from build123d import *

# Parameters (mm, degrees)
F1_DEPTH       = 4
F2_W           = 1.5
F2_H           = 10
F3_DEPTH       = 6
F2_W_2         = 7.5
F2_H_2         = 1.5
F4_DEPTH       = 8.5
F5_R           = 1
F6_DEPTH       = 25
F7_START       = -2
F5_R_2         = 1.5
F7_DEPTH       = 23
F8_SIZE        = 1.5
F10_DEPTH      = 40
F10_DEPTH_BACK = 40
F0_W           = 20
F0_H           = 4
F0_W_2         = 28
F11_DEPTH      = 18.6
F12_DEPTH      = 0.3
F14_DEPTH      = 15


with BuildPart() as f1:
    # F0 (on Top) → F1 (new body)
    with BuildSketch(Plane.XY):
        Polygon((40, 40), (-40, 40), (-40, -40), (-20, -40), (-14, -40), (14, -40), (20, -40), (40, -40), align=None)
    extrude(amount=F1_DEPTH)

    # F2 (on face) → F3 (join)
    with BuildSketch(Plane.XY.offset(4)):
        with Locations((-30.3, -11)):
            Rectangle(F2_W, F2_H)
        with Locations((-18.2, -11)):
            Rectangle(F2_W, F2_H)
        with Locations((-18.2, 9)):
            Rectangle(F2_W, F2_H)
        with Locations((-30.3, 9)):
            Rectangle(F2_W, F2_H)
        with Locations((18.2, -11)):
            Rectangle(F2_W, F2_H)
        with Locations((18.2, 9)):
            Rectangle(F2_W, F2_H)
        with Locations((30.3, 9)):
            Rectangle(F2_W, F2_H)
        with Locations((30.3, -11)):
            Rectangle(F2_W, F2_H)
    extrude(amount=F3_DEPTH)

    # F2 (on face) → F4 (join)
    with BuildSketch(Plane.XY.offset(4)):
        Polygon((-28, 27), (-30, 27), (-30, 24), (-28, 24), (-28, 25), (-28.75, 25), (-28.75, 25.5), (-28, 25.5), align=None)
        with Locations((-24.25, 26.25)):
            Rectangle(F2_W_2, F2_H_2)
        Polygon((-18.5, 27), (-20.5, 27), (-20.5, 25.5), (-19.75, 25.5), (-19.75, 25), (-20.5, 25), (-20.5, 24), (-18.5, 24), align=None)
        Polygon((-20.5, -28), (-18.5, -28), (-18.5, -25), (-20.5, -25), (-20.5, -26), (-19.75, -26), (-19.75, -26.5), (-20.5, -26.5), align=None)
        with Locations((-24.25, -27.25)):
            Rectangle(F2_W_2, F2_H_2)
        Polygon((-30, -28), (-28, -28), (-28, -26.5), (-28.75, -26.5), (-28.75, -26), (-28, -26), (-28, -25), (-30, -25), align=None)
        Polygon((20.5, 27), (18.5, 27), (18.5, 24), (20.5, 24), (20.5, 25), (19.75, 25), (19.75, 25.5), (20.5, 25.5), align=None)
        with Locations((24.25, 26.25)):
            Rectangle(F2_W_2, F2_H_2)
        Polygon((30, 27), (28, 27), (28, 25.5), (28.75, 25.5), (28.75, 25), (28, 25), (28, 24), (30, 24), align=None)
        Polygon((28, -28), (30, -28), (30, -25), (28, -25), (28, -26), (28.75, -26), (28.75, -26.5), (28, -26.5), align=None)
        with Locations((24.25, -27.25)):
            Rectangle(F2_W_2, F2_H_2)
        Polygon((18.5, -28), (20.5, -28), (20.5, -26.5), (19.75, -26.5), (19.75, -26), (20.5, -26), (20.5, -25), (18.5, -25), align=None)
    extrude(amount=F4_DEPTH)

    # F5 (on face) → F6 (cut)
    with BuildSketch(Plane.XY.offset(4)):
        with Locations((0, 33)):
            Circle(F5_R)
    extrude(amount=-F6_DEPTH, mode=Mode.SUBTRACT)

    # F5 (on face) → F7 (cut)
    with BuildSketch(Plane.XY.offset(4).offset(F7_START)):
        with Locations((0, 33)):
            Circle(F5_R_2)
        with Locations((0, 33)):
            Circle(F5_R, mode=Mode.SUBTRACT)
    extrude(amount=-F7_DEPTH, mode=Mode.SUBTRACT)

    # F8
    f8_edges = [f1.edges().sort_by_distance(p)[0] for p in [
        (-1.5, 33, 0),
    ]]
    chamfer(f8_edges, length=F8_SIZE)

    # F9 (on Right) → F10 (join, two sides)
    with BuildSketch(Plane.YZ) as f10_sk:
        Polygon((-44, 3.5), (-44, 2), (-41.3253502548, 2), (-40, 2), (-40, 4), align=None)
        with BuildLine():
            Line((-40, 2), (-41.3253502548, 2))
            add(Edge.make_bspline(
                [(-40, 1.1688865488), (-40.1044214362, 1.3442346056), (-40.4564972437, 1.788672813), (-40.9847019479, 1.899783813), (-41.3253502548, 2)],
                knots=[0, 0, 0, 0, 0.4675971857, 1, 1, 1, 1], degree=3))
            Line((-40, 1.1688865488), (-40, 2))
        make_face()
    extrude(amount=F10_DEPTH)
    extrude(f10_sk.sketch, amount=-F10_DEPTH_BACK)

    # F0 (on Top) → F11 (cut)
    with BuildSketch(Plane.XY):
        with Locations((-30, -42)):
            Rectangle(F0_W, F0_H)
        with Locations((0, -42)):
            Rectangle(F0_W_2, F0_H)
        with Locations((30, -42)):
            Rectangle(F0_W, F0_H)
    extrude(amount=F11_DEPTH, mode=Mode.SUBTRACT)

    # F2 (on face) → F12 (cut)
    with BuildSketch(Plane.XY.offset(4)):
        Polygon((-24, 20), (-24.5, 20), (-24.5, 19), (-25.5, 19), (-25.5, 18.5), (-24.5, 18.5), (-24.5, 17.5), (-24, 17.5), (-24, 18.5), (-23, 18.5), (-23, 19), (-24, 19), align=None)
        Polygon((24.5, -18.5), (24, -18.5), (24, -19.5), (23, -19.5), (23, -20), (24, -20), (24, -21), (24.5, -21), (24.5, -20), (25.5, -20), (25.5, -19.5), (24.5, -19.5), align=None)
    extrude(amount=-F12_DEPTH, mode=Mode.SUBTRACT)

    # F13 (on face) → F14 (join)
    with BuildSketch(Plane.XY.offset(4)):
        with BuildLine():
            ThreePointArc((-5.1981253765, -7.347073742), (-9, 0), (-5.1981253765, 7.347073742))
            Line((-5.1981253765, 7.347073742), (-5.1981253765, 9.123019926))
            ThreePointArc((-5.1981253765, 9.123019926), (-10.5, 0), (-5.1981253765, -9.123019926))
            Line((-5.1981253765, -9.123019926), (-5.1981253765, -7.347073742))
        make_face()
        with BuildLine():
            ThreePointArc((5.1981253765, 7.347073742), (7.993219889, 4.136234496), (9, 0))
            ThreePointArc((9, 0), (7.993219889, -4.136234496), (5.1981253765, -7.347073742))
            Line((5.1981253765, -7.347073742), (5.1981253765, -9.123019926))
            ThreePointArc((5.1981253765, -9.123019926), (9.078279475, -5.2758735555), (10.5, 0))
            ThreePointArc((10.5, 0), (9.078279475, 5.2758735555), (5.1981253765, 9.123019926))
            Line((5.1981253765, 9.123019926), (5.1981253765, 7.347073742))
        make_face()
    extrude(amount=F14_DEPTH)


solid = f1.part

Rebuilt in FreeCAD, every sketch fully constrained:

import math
import FreeCAD as App
import Part
import Sketcher
Q = App.Units.Quantity


def edges_at(feature, points):
    """Names of the edges that pass closest to the given points."""
    edges = feature.Shape.Edges
    near = lambda p: min(range(len(edges)), key=lambda i: edges[i].distToShape(Part.Vertex(*p))[0])
    return sorted({f"Edge{near(p) + 1}" for p in points})


def add_polygon(sketch, points):
    """Adds a closed chain of lines whose ends are joined by coincident constraints."""
    first, n = sketch.GeometryCount, len(points)
    for a, b in zip(points, points[1:] + points[:1]):
        sketch.addGeometry(Part.LineSegment(App.Vector(*a, 0), App.Vector(*b, 0)), False)
    for i in range(n):
        sketch.addConstraint(Sketcher.Constraint("Coincident", first + i, 2, first + (i + 1) % n, 1))

doc = App.newDocument("Part")
params = doc.addObject("Spreadsheet::Sheet", "Params")
for row, (alias, value) in enumerate([
    ("sketch1_width", "80 mm"),
    ("pad1_length", "4 mm"),
    ("sketch2_height", "10 mm"),
    ("sketch2_width", "1.5 mm"),
    ("pad2_length", "6 mm"),
    ("sketch3_width", "2 mm"),
    ("sketch3_width2", "9 mm"),
    ("sketch3_height", "3 mm"),
    ("sketch3_height2", "1 mm"),
    ("sketch3_width3", "11.5 mm"),
    ("pad3_length", "8.5 mm"),
    ("sketch4_diameter", "2 mm"),
    ("pocket1_length", "25 mm"),
    ("sketch5_diameter", "3 mm"),
    ("sketch5_diameter2", "2 mm"),
    ("pocket2_length", "23 mm"),
    ("chamfer_size", "1.5 mm"),
    ("sketch6_height", "1.5 mm"),
    ("pad4_length", "40 mm"),
    ("pad4_length2", "40 mm"),
    ("sketch7_width", "20 mm"),
    ("sketch7_width2", "28 mm"),
    ("sketch7_height", "4 mm"),
    ("pocket3_length", "18.6 mm"),
    ("sketch8_width", "1 mm"),
    ("sketch8_width2", "0.5 mm"),
    ("pocket4_length", "0.3 mm"),
    ("sketch9_radius", "9 mm"),
    ("sketch9_radius2", "10.5 mm"),
    ("pad5_length", "15 mm"),
], start=1):
    params.set(f"A{row}", alias)
    params.set(f"B{row}", "=" + value)
    params.setAlias(f"B{row}", alias)

body = doc.addObject("PartDesign::Body", "Body")

sketch1 = doc.addObject("Sketcher::SketchObject", "Sketch")
body.addObject(sketch1)
sketch1.AttachmentSupport = (doc.XY_Plane, [""])
sketch1.MapMode = "FlatFace"
add_polygon(sketch1, [(40, 40), (-40, 40), (-40, -40), (40, -40)])
sketch1.addConstraint(Sketcher.Constraint("Horizontal", 0))
sketch1.addConstraint(Sketcher.Constraint("Vertical", 1))
sketch1.addConstraint(Sketcher.Constraint("Horizontal", 2))
sketch1.addConstraint(Sketcher.Constraint("Vertical", 3))
sketch1.addConstraint(Sketcher.Constraint("Symmetric", 0, 2, 2, 2, -1, 1))
sketch1.addConstraint(Sketcher.Constraint("Equal", 2, 1))
sketch1.addConstraint(Sketcher.Constraint("DistanceX", 0, 2, 0, 1, Q("80 mm")))
sketch1.setExpression("Constraints[10]", "Params.sketch1_width")
pad1 = doc.addObject("PartDesign::Pad", "Pad")
body.addObject(pad1)
pad1.Profile = sketch1
pad1.setExpression("Length", "Params.pad1_length")

sketch2 = doc.addObject("Sketcher::SketchObject", "Sketch001")
body.addObject(sketch2)
sketch2.AttachmentSupport = (doc.XY_Plane, [""])
sketch2.MapMode = "FlatFace"
sketch2.AttachmentOffset = App.Placement(App.Vector(0, 0, 4), App.Rotation())
add_polygon(sketch2, [(-31.1, -6), (-31.1, -16), (-29.6, -16), (-29.6, -6)])
add_polygon(sketch2, [(-18.9, -6), (-18.9, -16), (-17.4, -16), (-17.4, -6)])
add_polygon(sketch2, [(-18.9, 14), (-18.9, 4), (-17.4, 4), (-17.4, 14)])
add_polygon(sketch2, [(-31.1, 14), (-31.1, 4), (-29.6, 4), (-29.6, 14)])
add_polygon(sketch2, [(17.4, -6), (17.4, -16), (18.9, -16), (18.9, -6)])
add_polygon(sketch2, [(17.4, 14), (17.4, 4), (18.9, 4), (18.9, 14)])
add_polygon(sketch2, [(29.6, 14), (29.6, 4), (31.1, 4), (31.1, 14)])
add_polygon(sketch2, [(29.6, -6), (29.6, -16), (31.1, -16), (31.1, -6)])
sketch2.addConstraint(Sketcher.Constraint("Vertical", 0))
sketch2.addConstraint(Sketcher.Constraint("Horizontal", 1))
sketch2.addConstraint(Sketcher.Constraint("Vertical", 2))
sketch2.addConstraint(Sketcher.Constraint("Horizontal", 3))
sketch2.addConstraint(Sketcher.Constraint("Vertical", 4))
sketch2.addConstraint(Sketcher.Constraint("Horizontal", 5))
sketch2.addConstraint(Sketcher.Constraint("Vertical", 6))
sketch2.addConstraint(Sketcher.Constraint("Horizontal", 7))
sketch2.addConstraint(Sketcher.Constraint("Vertical", 8))
sketch2.addConstraint(Sketcher.Constraint("Horizontal", 9))
sketch2.addConstraint(Sketcher.Constraint("Vertical", 10))
sketch2.addConstraint(Sketcher.Constraint("Horizontal", 11))
sketch2.addConstraint(Sketcher.Constraint("Vertical", 12))
sketch2.addConstraint(Sketcher.Constraint("Horizontal", 13))
sketch2.addConstraint(Sketcher.Constraint("Vertical", 14))
sketch2.addConstraint(Sketcher.Constraint("Horizontal", 15))
sketch2.addConstraint(Sketcher.Constraint("Vertical", 16))
sketch2.addConstraint(Sketcher.Constraint("Horizontal", 17))
sketch2.addConstraint(Sketcher.Constraint("Vertical", 18))
sketch2.addConstraint(Sketcher.Constraint("Horizontal", 19))
sketch2.addConstraint(Sketcher.Constraint("Vertical", 20))
sketch2.addConstraint(Sketcher.Constraint("Horizontal", 21))
sketch2.addConstraint(Sketcher.Constraint("Vertical", 22))
sketch2.addConstraint(Sketcher.Constraint("Horizontal", 23))
sketch2.addConstraint(Sketcher.Constraint("Vertical", 24))
sketch2.addConstraint(Sketcher.Constraint("Horizontal", 25))
sketch2.addConstraint(Sketcher.Constraint("Vertical", 26))
sketch2.addConstraint(Sketcher.Constraint("Horizontal", 27))
sketch2.addConstraint(Sketcher.Constraint("Vertical", 28))
sketch2.addConstraint(Sketcher.Constraint("Horizontal", 29))
sketch2.addConstraint(Sketcher.Constraint("Vertical", 30))
sketch2.addConstraint(Sketcher.Constraint("Horizontal", 31))
sketch2.addConstraint(Sketcher.Constraint("Symmetric", 5, 2, 16, 2, -2))
sketch2.addConstraint(Sketcher.Constraint("Symmetric", 7, 2, 18, 2, -2))
sketch2.addConstraint(Sketcher.Constraint("Symmetric", 9, 2, 20, 2, -2))
sketch2.addConstraint(Sketcher.Constraint("Symmetric", 11, 2, 22, 2, -2))
sketch2.addConstraint(Sketcher.Constraint("Symmetric", 13, 2, 24, 2, -2))
sketch2.addConstraint(Sketcher.Constraint("Symmetric", 15, 2, 26, 2, -2))
sketch2.addConstraint(Sketcher.Constraint("Symmetric", 1, 2, 28, 2, -2))
sketch2.addConstraint(Sketcher.Constraint("Symmetric", 3, 2, 30, 2, -2))
sketch2.addConstraint(Sketcher.Constraint("Horizontal", 1, 2, 4, 2))
sketch2.addConstraint(Sketcher.Constraint("Horizontal", 3, 2, 6, 2))
sketch2.addConstraint(Sketcher.Constraint("Horizontal", 9, 2, 12, 2))
sketch2.addConstraint(Sketcher.Constraint("Horizontal", 11, 2, 14, 2))
sketch2.addConstraint(Sketcher.Constraint("Vertical", 7, 2, 8, 2))
sketch2.addConstraint(Sketcher.Constraint("Vertical", 6, 2, 9, 2))
sketch2.addConstraint(Sketcher.Constraint("Vertical", 3, 2, 12, 2))
sketch2.addConstraint(Sketcher.Constraint("Vertical", 2, 2, 13, 2))
sketch2.addConstraint(Sketcher.Constraint("Equal", 3, 5))
sketch2.addConstraint(Sketcher.Constraint("Equal", 6, 8))
sketch2.addConstraint(Sketcher.Constraint("DistanceY", 0, 2, 0, 1, Q("10 mm")))
sketch2.addConstraint(Sketcher.Constraint("DistanceX", 1, 1, 1, 2, Q("1.5 mm")))
sketch2.addConstraint(Sketcher.Constraint("DistanceY", 0, 2, -1, 1, Q("16 mm")))
sketch2.addConstraint(Sketcher.Constraint("DistanceY", -1, 1, 8, 2, Q("4 mm")))
sketch2.addConstraint(Sketcher.Constraint("DistanceX", 1, 2, 4, 2, Q("10.6 mm")))
sketch2.addConstraint(Sketcher.Constraint("DistanceX", 5, 2, 16, 2, Q("34.9 mm")))
sketch2.setExpression("Constraints[82]", "Params.sketch2_height")
sketch2.setExpression("Constraints[83]", "Params.sketch2_width")
pad2 = doc.addObject("PartDesign::Pad", "Pad001")
body.addObject(pad2)
pad2.Profile = sketch2
pad2.setExpression("Length", "Params.pad2_length")

sketch3 = doc.addObject("Sketcher::SketchObject", "Sketch002")
body.addObject(sketch3)
sketch3.AttachmentSupport = (doc.XY_Plane, [""])
sketch3.MapMode = "FlatFace"
sketch3.AttachmentOffset = App.Placement(App.Vector(0, 0, 4), App.Rotation())
add_polygon(sketch3, [(-30, 27), (-30, 24), (-28, 24), (-28, 25), (-28.8, 25), (-28.8, 25.5), (-19.8, 25.5), (-19.8, 25), (-20.5, 25), (-20.5, 24), (-18.5, 24), (-18.5, 27)])
add_polygon(sketch3, [(-18.5, -28), (-18.5, -25), (-20.5, -25), (-20.5, -26), (-19.8, -26), (-19.8, -26.5), (-28.8, -26.5), (-28.8, -26), (-28, -26), (-28, -25), (-30, -25), (-30, -28)])
add_polygon(sketch3, [(18.5, 27), (18.5, 24), (20.5, 24), (20.5, 25), (19.8, 25), (19.8, 25.5), (28.8, 25.5), (28.8, 25), (28, 25), (28, 24), (30, 24), (30, 27)])
add_polygon(sketch3, [(30, -28), (30, -25), (28, -25), (28, -26), (28.8, -26), (28.8, -26.5), (19.8, -26.5), (19.8, -26), (20.5, -26), (20.5, -25), (18.5, -25), (18.5, -28)])
sketch3.addConstraint(Sketcher.Constraint("Vertical", 0))
sketch3.addConstraint(Sketcher.Constraint("Horizontal", 1))
sketch3.addConstraint(Sketcher.Constraint("Vertical", 2))
sketch3.addConstraint(Sketcher.Constraint("Horizontal", 3))
sketch3.addConstraint(Sketcher.Constraint("Vertical", 4))
sketch3.addConstraint(Sketcher.Constraint("Horizontal", 5))
sketch3.addConstraint(Sketcher.Constraint("Vertical", 6))
sketch3.addConstraint(Sketcher.Constraint("Horizontal", 7))
sketch3.addConstraint(Sketcher.Constraint("Vertical", 8))
sketch3.addConstraint(Sketcher.Constraint("Horizontal", 9))
sketch3.addConstraint(Sketcher.Constraint("Vertical", 10))
sketch3.addConstraint(Sketcher.Constraint("Horizontal", 11))
sketch3.addConstraint(Sketcher.Constraint("Vertical", 12))
sketch3.addConstraint(Sketcher.Constraint("Horizontal", 13))
sketch3.addConstraint(Sketcher.Constraint("Vertical", 14))
sketch3.addConstraint(Sketcher.Constraint("Horizontal", 15))
sketch3.addConstraint(Sketcher.Constraint("Vertical", 16))
sketch3.addConstraint(Sketcher.Constraint("Horizontal", 17))
sketch3.addConstraint(Sketcher.Constraint("Vertical", 18))
sketch3.addConstraint(Sketcher.Constraint("Horizontal", 19))
sketch3.addConstraint(Sketcher.Constraint("Vertical", 20))
sketch3.addConstraint(Sketcher.Constraint("Horizontal", 21))
sketch3.addConstraint(Sketcher.Constraint("Vertical", 22))
sketch3.addConstraint(Sketcher.Constraint("Horizontal", 23))
sketch3.addConstraint(Sketcher.Constraint("Vertical", 24))
sketch3.addConstraint(Sketcher.Constraint("Horizontal", 25))
sketch3.addConstraint(Sketcher.Constraint("Vertical", 26))
sketch3.addConstraint(Sketcher.Constraint("Horizontal", 27))
sketch3.addConstraint(Sketcher.Constraint("Vertical", 28))
sketch3.addConstraint(Sketcher.Constraint("Horizontal", 29))
sketch3.addConstraint(Sketcher.Constraint("Vertical", 30))
sketch3.addConstraint(Sketcher.Constraint("Horizontal", 31))
sketch3.addConstraint(Sketcher.Constraint("Vertical", 32))
sketch3.addConstraint(Sketcher.Constraint("Horizontal", 33))
sketch3.addConstraint(Sketcher.Constraint("Vertical", 34))
sketch3.addConstraint(Sketcher.Constraint("Horizontal", 35))
sketch3.addConstraint(Sketcher.Constraint("Vertical", 36))
sketch3.addConstraint(Sketcher.Constraint("Horizontal", 37))
sketch3.addConstraint(Sketcher.Constraint("Vertical", 38))
sketch3.addConstraint(Sketcher.Constraint("Horizontal", 39))
sketch3.addConstraint(Sketcher.Constraint("Vertical", 40))
sketch3.addConstraint(Sketcher.Constraint("Horizontal", 41))
sketch3.addConstraint(Sketcher.Constraint("Vertical", 42))
sketch3.addConstraint(Sketcher.Constraint("Horizontal", 43))
sketch3.addConstraint(Sketcher.Constraint("Vertical", 44))
sketch3.addConstraint(Sketcher.Constraint("Horizontal", 45))
sketch3.addConstraint(Sketcher.Constraint("Vertical", 46))
sketch3.addConstraint(Sketcher.Constraint("Horizontal", 47))
sketch3.addConstraint(Sketcher.Constraint("Symmetric", 13, 2, 26, 2, -1, 1))
sketch3.addConstraint(Sketcher.Constraint("Symmetric", 20, 2, 31, 2, -1, 1))
sketch3.addConstraint(Sketcher.Constraint("Symmetric", 2, 2, 37, 2, -1, 1))
sketch3.addConstraint(Sketcher.Constraint("Symmetric", 7, 2, 44, 2, -1, 1))
sketch3.addConstraint(Sketcher.Constraint("Symmetric", 9, 2, 24, 2, -2))
sketch3.addConstraint(Sketcher.Constraint("Symmetric", 7, 2, 26, 2, -2))
sketch3.addConstraint(Sketcher.Constraint("Symmetric", 5, 2, 28, 2, -2))
sketch3.addConstraint(Sketcher.Constraint("Symmetric", 3, 2, 30, 2, -2))
sketch3.addConstraint(Sketcher.Constraint("Symmetric", 1, 2, 32, 2, -2))
sketch3.addConstraint(Sketcher.Constraint("Symmetric", 11, 2, 34, 2, -2))
sketch3.addConstraint(Sketcher.Constraint("Symmetric", 18, 2, 39, 2, -2))
sketch3.addConstraint(Sketcher.Constraint("Symmetric", 16, 2, 41, 2, -2))
sketch3.addConstraint(Sketcher.Constraint("Symmetric", 23, 2, 46, 2, -2))
sketch3.addConstraint(Sketcher.Constraint("Horizontal", 3, 2, 6, 2))
sketch3.addConstraint(Sketcher.Constraint("Horizontal", 1, 2, 8, 2))
sketch3.addConstraint(Sketcher.Constraint("Horizontal", 15, 2, 18, 2))
sketch3.addConstraint(Sketcher.Constraint("Horizontal", 39, 2, 42, 2))
sketch3.addConstraint(Sketcher.Constraint("Vertical", 10, 2, 12, 2))
sketch3.addConstraint(Sketcher.Constraint("Vertical", 6, 2, 15, 2))
sketch3.addConstraint(Sketcher.Constraint("Vertical", 4, 2, 17, 2))
sketch3.addConstraint(Sketcher.Constraint("Vertical", 11, 2, 21, 2))
sketch3.addConstraint(Sketcher.Constraint("Vertical", 34, 2, 36, 2))
sketch3.addConstraint(Sketcher.Constraint("Equal", 3, 7))
sketch3.addConstraint(Sketcher.Constraint("Equal", 1, 9))
sketch3.addConstraint(Sketcher.Constraint("Equal", 10, 12))
sketch3.addConstraint(Sketcher.Constraint("Equal", 8, 14))
sketch3.addConstraint(Sketcher.Constraint("Equal", 6, 16))
sketch3.addConstraint(Sketcher.Constraint("DistanceX", 1, 1, 1, 2, Q("2 mm")))
sketch3.addConstraint(Sketcher.Constraint("DistanceX", 5, 1, 5, 2, Q("9 mm")))
sketch3.addConstraint(Sketcher.Constraint("DistanceY", 0, 2, 0, 1, Q("3 mm")))
sketch3.addConstraint(Sketcher.Constraint("DistanceY", 2, 1, 2, 2, Q("1 mm")))
sketch3.addConstraint(Sketcher.Constraint("DistanceX", 11, 2, 11, 1, Q("11.5 mm")))
sketch3.addConstraint(Sketcher.Constraint("DistanceY", 4, 1, 4, 2, Q("0.5 mm")))
sketch3.addConstraint(Sketcher.Constraint("DistanceX", 0, 2, -1, 1, Q("30 mm")))
sketch3.addConstraint(Sketcher.Constraint("DistanceY", -1, 1, 0, 2, Q("24 mm")))
sketch3.setExpression("Constraints[123]", "Params.sketch3_width")
sketch3.setExpression("Constraints[124]", "Params.sketch3_width2")
sketch3.setExpression("Constraints[125]", "Params.sketch3_height")
sketch3.setExpression("Constraints[126]", "Params.sketch3_height2")
sketch3.setExpression("Constraints[127]", "Params.sketch3_width3")
pad3 = doc.addObject("PartDesign::Pad", "Pad002")
body.addObject(pad3)
pad3.Profile = sketch3
pad3.setExpression("Length", "Params.pad3_length")

sketch4 = doc.addObject("Sketcher::SketchObject", "Sketch003")
body.addObject(sketch4)
sketch4.AttachmentSupport = (doc.XY_Plane, [""])
sketch4.MapMode = "FlatFace"
sketch4.AttachmentOffset = App.Placement(App.Vector(0, 0, 4), App.Rotation())
sketch4.addGeometry(Part.Circle(App.Vector(0, 33, 0), App.Vector(0, 0, 1), 1), False)
sketch4.addConstraint(Sketcher.Constraint("PointOnObject", 0, 3, -2))
sketch4.addConstraint(Sketcher.Constraint("Diameter", 0, Q("2 mm")))
sketch4.addConstraint(Sketcher.Constraint("DistanceY", -1, 1, 0, 3, Q("33 mm")))
sketch4.setExpression("Constraints[1]", "Params.sketch4_diameter")
pocket1 = doc.addObject("PartDesign::Pocket", "Pocket")
body.addObject(pocket1)
pocket1.Profile = sketch4
pocket1.setExpression("Length", "Params.pocket1_length")

sketch5 = doc.addObject("Sketcher::SketchObject", "Sketch004")
body.addObject(sketch5)
sketch5.AttachmentSupport = (doc.XY_Plane, [""])
sketch5.MapMode = "FlatFace"
sketch5.AttachmentOffset = App.Placement(App.Vector(0, 0, 2), App.Rotation())
sketch5.addGeometry(Part.Circle(App.Vector(0, 33, 0), App.Vector(0, 0, 1), 1.5), False)
sketch5.addGeometry(Part.Circle(App.Vector(0, 33, 0), App.Vector(0, 0, 1), 1), False)
sketch5.addConstraint(Sketcher.Constraint("Coincident", 1, 3, 0, 3))
sketch5.addConstraint(Sketcher.Constraint("PointOnObject", 0, 3, -2))
sketch5.addConstraint(Sketcher.Constraint("Diameter", 0, Q("3 mm")))
sketch5.addConstraint(Sketcher.Constraint("Diameter", 1, Q("2 mm")))
sketch5.addConstraint(Sketcher.Constraint("DistanceY", -1, 1, 0, 3, Q("33 mm")))
sketch5.setExpression("Constraints[2]", "Params.sketch5_diameter")
sketch5.setExpression("Constraints[3]", "Params.sketch5_diameter2")
pocket2 = doc.addObject("PartDesign::Pocket", "Pocket001")
body.addObject(pocket2)
pocket2.Profile = sketch5
pocket2.setExpression("Length", "Params.pocket2_length")
doc.recompute()

chamfer = doc.addObject("PartDesign::Chamfer", "Chamfer")
body.addObject(chamfer)
chamfer.Base = (pocket2, edges_at(pocket2, [(-1.5, 33, 0)]))
chamfer.setExpression("Size", "Params.chamfer_size")

sketch6 = doc.addObject("Sketcher::SketchObject", "Sketch005")
body.addObject(sketch6)
sketch6.AttachmentSupport = (doc.YZ_Plane, [""])
sketch6.MapMode = "FlatFace"
sketch6.addGeometry(Part.LineSegment(App.Vector(-44, 3.5, 0), App.Vector(-44, 2, 0)), False)
sketch6.addGeometry(Part.LineSegment(App.Vector(-44, 2, 0), App.Vector(-41.32535, 2, 0)), False)
sketch6.addGeometry(Part.BSplineCurve([App.Vector(-40, 1.168887, 0), App.Vector(-40.104421, 1.344235, 0), App.Vector(-40.456497, 1.788673, 0), App.Vector(-40.984702, 1.899784, 0), App.Vector(-41.32535, 2, 0)], [4, 1, 4], [0, 0.467597186, 1], False, 3, [1, 1, 1, 1, 1], False), False)
sketch6.addGeometry(Part.LineSegment(App.Vector(-40, 1.168887, 0), App.Vector(-40, 4, 0)), False)
sketch6.addGeometry(Part.LineSegment(App.Vector(-40, 4, 0), App.Vector(-44, 3.5, 0)), False)
sketch6.addConstraint(Sketcher.Constraint("Block", 2))
sketch6.addConstraint(Sketcher.Constraint("Coincident", 0, 2, 1, 1))
sketch6.addConstraint(Sketcher.Constraint("Coincident", 1, 2, 2, 2))
sketch6.addConstraint(Sketcher.Constraint("Coincident", 2, 1, 3, 1))
sketch6.addConstraint(Sketcher.Constraint("Coincident", 3, 2, 4, 1))
sketch6.addConstraint(Sketcher.Constraint("Coincident", 4, 2, 0, 1))
sketch6.addConstraint(Sketcher.Constraint("Vertical", 0))
sketch6.addConstraint(Sketcher.Constraint("Horizontal", 1))
sketch6.addConstraint(Sketcher.Constraint("Vertical", 3))
sketch6.addConstraint(Sketcher.Constraint("DistanceY", 0, 2, 0, 1, Q("1.5 mm")))
sketch6.addConstraint(Sketcher.Constraint("DistanceX", 0, 2, -1, 1, Q("44 mm")))
sketch6.addConstraint(Sketcher.Constraint("DistanceY", -1, 1, 3, 2, Q("4 mm")))
sketch6.setExpression("Constraints[9]", "Params.sketch6_height")
pad4 = doc.addObject("PartDesign::Pad", "Pad003")
body.addObject(pad4)
pad4.Profile = sketch6
pad4.Type = "TwoLengths"
pad4.setExpression("Length", "Params.pad4_length")
pad4.setExpression("Length2", "Params.pad4_length2")

sketch7 = doc.addObject("Sketcher::SketchObject", "Sketch006")
body.addObject(sketch7)
sketch7.AttachmentSupport = (doc.XY_Plane, [""])
sketch7.MapMode = "FlatFace"
add_polygon(sketch7, [(-40, -40), (-40, -44), (-20, -44), (-20, -40)])
add_polygon(sketch7, [(-14, -40), (-14, -44), (14, -44), (14, -40)])
add_polygon(sketch7, [(20, -40), (20, -44), (40, -44), (40, -40)])
sketch7.addConstraint(Sketcher.Constraint("Vertical", 0))
sketch7.addConstraint(Sketcher.Constraint("Horizontal", 1))
sketch7.addConstraint(Sketcher.Constraint("Vertical", 2))
sketch7.addConstraint(Sketcher.Constraint("Horizontal", 3))
sketch7.addConstraint(Sketcher.Constraint("Vertical", 4))
sketch7.addConstraint(Sketcher.Constraint("Horizontal", 5))
sketch7.addConstraint(Sketcher.Constraint("Vertical", 6))
sketch7.addConstraint(Sketcher.Constraint("Horizontal", 7))
sketch7.addConstraint(Sketcher.Constraint("Vertical", 8))
sketch7.addConstraint(Sketcher.Constraint("Horizontal", 9))
sketch7.addConstraint(Sketcher.Constraint("Vertical", 10))
sketch7.addConstraint(Sketcher.Constraint("Horizontal", 11))
sketch7.addConstraint(Sketcher.Constraint("Symmetric", 1, 2, 8, 2, -2))
sketch7.addConstraint(Sketcher.Constraint("Symmetric", 3, 2, 10, 2, -2))
sketch7.addConstraint(Sketcher.Constraint("Horizontal", 1, 2, 4, 2))
sketch7.addConstraint(Sketcher.Constraint("Horizontal", 3, 2, 6, 2))
sketch7.addConstraint(Sketcher.Constraint("DistanceX", 1, 1, 1, 2, Q("20 mm")))
sketch7.addConstraint(Sketcher.Constraint("DistanceX", 5, 1, 5, 2, Q("28 mm")))
sketch7.addConstraint(Sketcher.Constraint("DistanceY", 0, 2, 0, 1, Q("4 mm")))
sketch7.addConstraint(Sketcher.Constraint("DistanceX", 0, 2, -1, 1, Q("40 mm")))
sketch7.addConstraint(Sketcher.Constraint("DistanceY", 0, 2, -1, 1, Q("44 mm")))
sketch7.addConstraint(Sketcher.Constraint("DistanceX", 4, 2, -1, 1, Q("14 mm")))
sketch7.setExpression("Constraints[28]", "Params.sketch7_width")
sketch7.setExpression("Constraints[29]", "Params.sketch7_width2")
sketch7.setExpression("Constraints[30]", "Params.sketch7_height")
pocket3 = doc.addObject("PartDesign::Pocket", "Pocket002")
body.addObject(pocket3)
pocket3.Profile = sketch7
pocket3.setExpression("Length", "Params.pocket3_length")
pocket3.Reversed = True

sketch8 = doc.addObject("Sketcher::SketchObject", "Sketch007")
body.addObject(sketch8)
sketch8.AttachmentSupport = (doc.XY_Plane, [""])
sketch8.MapMode = "FlatFace"
sketch8.AttachmentOffset = App.Placement(App.Vector(0, 0, 4), App.Rotation())
add_polygon(sketch8, [(-24, 20), (-24.5, 20), (-24.5, 19), (-25.5, 19), (-25.5, 18.5), (-24.5, 18.5), (-24.5, 17.5), (-24, 17.5), (-24, 18.5), (-23, 18.5), (-23, 19), (-24, 19)])
add_polygon(sketch8, [(24.5, -18.5), (24, -18.5), (24, -19.5), (23, -19.5), (23, -20), (24, -20), (24, -21), (24.5, -21), (24.5, -20), (25.5, -20), (25.5, -19.5), (24.5, -19.5)])
sketch8.addConstraint(Sketcher.Constraint("Horizontal", 0))
sketch8.addConstraint(Sketcher.Constraint("Vertical", 1))
sketch8.addConstraint(Sketcher.Constraint("Horizontal", 2))
sketch8.addConstraint(Sketcher.Constraint("Vertical", 3))
sketch8.addConstraint(Sketcher.Constraint("Horizontal", 4))
sketch8.addConstraint(Sketcher.Constraint("Vertical", 5))
sketch8.addConstraint(Sketcher.Constraint("Horizontal", 6))
sketch8.addConstraint(Sketcher.Constraint("Vertical", 7))
sketch8.addConstraint(Sketcher.Constraint("Horizontal", 8))
sketch8.addConstraint(Sketcher.Constraint("Vertical", 9))
sketch8.addConstraint(Sketcher.Constraint("Horizontal", 10))
sketch8.addConstraint(Sketcher.Constraint("Vertical", 11))
sketch8.addConstraint(Sketcher.Constraint("Horizontal", 12))
sketch8.addConstraint(Sketcher.Constraint("Vertical", 13))
sketch8.addConstraint(Sketcher.Constraint("Horizontal", 14))
sketch8.addConstraint(Sketcher.Constraint("Vertical", 15))
sketch8.addConstraint(Sketcher.Constraint("Horizontal", 16))
sketch8.addConstraint(Sketcher.Constraint("Vertical", 17))
sketch8.addConstraint(Sketcher.Constraint("Horizontal", 18))
sketch8.addConstraint(Sketcher.Constraint("Vertical", 19))
sketch8.addConstraint(Sketcher.Constraint("Horizontal", 20))
sketch8.addConstraint(Sketcher.Constraint("Vertical", 21))
sketch8.addConstraint(Sketcher.Constraint("Horizontal", 22))
sketch8.addConstraint(Sketcher.Constraint("Vertical", 23))
sketch8.addConstraint(Sketcher.Constraint("Symmetric", 7, 2, 12, 2, -1, 1))
sketch8.addConstraint(Sketcher.Constraint("Symmetric", 11, 2, 16, 2, -1, 1))
sketch8.addConstraint(Sketcher.Constraint("Symmetric", 0, 2, 19, 2, -1, 1))
sketch8.addConstraint(Sketcher.Constraint("Symmetric", 4, 2, 23, 2, -1, 1))
sketch8.addConstraint(Sketcher.Constraint("Horizontal", 2, 2, 9, 2))
sketch8.addConstraint(Sketcher.Constraint("Horizontal", 14, 2, 21, 2))
sketch8.addConstraint(Sketcher.Constraint("Vertical", 1, 2, 4, 2))
sketch8.addConstraint(Sketcher.Constraint("Vertical", 7, 2, 10, 2))
sketch8.addConstraint(Sketcher.Constraint("Equal", 4, 8))
sketch8.addConstraint(Sketcher.Constraint("Equal", 10, 14))
sketch8.addConstraint(Sketcher.Constraint("Equal", 16, 20))
sketch8.addConstraint(Sketcher.Constraint("Equal", 22, 1))
sketch8.addConstraint(Sketcher.Constraint("Equal", 18, 3))
sketch8.addConstraint(Sketcher.Constraint("Equal", 1, 5))
sketch8.addConstraint(Sketcher.Constraint("Equal", 11, 13))
sketch8.addConstraint(Sketcher.Constraint("Equal", 13, 17))
sketch8.addConstraint(Sketcher.Constraint("DistanceX", 2, 2, 2, 1, Q("1 mm")))
sketch8.addConstraint(Sketcher.Constraint("DistanceX", 0, 2, 0, 1, Q("0.5 mm")))
sketch8.addConstraint(Sketcher.Constraint("DistanceY", -1, 1, 0, 2, Q("20 mm")))
sketch8.addConstraint(Sketcher.Constraint("DistanceX", 6, 2, -1, 1, Q("24 mm")))
sketch8.setExpression("Constraints[64]", "Params.sketch8_width")
sketch8.setExpression("Constraints[65]", "Params.sketch8_width2")
pocket4 = doc.addObject("PartDesign::Pocket", "Pocket003")
body.addObject(pocket4)
pocket4.Profile = sketch8
pocket4.setExpression("Length", "Params.pocket4_length")

sketch9 = doc.addObject("Sketcher::SketchObject", "Sketch008")
body.addObject(sketch9)
sketch9.AttachmentSupport = (doc.XY_Plane, [""])
sketch9.MapMode = "FlatFace"
sketch9.AttachmentOffset = App.Placement(App.Vector(0, 0, 4), App.Rotation())
sketch9.addGeometry(Part.ArcOfCircle(Part.Circle(App.Vector(0, 0, 0), App.Vector(0, 0, 1), 9), math.radians(125), math.radians(235)), False)
sketch9.addGeometry(Part.LineSegment(App.Vector(-5.2, 7.3, 0), App.Vector(-5.2, 9.1, 0)), False)
sketch9.addGeometry(Part.ArcOfCircle(Part.Circle(App.Vector(0, 0, 0), App.Vector(0, 0, 1), 10.5), math.radians(120), math.radians(240)), False)
sketch9.addGeometry(Part.LineSegment(App.Vector(-5.2, -9.1, 0), App.Vector(-5.2, -7.3, 0)), False)
sketch9.addGeometry(Part.ArcOfCircle(Part.Circle(App.Vector(0, 0, 0), App.Vector(0, 0, 1), 9), math.radians(0), math.radians(55)), False)
sketch9.addGeometry(Part.ArcOfCircle(Part.Circle(App.Vector(0, 0, 0), App.Vector(0, 0, 1), 9), math.radians(-55), math.radians(0)), False)
sketch9.addGeometry(Part.LineSegment(App.Vector(5.2, -7.3, 0), App.Vector(5.2, -9.1, 0)), False)
sketch9.addGeometry(Part.ArcOfCircle(Part.Circle(App.Vector(0, 0, 0), App.Vector(0, 0, 1), 10.5), math.radians(-60), math.radians(0)), False)
sketch9.addGeometry(Part.ArcOfCircle(Part.Circle(App.Vector(0, 0, 0), App.Vector(0, 0, 1), 10.5), math.radians(0), math.radians(60)), False)
sketch9.addGeometry(Part.LineSegment(App.Vector(5.2, 9.1, 0), App.Vector(5.2, 7.3, 0)), False)
sketch9.addConstraint(Sketcher.Constraint("Coincident", 0, 1, 1, 1))
sketch9.addConstraint(Sketcher.Constraint("Coincident", 1, 2, 2, 1))
sketch9.addConstraint(Sketcher.Constraint("Coincident", 2, 2, 3, 1))
sketch9.addConstraint(Sketcher.Constraint("Coincident", 3, 2, 0, 2))
sketch9.addConstraint(Sketcher.Constraint("Tangent", 4, 1, 5, 2))
sketch9.addConstraint(Sketcher.Constraint("Coincident", 5, 1, 6, 1))
sketch9.addConstraint(Sketcher.Constraint("Coincident", 6, 2, 7, 1))
sketch9.addConstraint(Sketcher.Constraint("Tangent", 7, 2, 8, 1))
sketch9.addConstraint(Sketcher.Constraint("Coincident", 8, 2, 9, 1))
sketch9.addConstraint(Sketcher.Constraint("Coincident", 9, 2, 4, 2))
sketch9.addConstraint(Sketcher.Constraint("Vertical", 1))
sketch9.addConstraint(Sketcher.Constraint("Vertical", 3))
sketch9.addConstraint(Sketcher.Constraint("Vertical", 6))
sketch9.addConstraint(Sketcher.Constraint("Vertical", 9))
sketch9.addConstraint(Sketcher.Constraint("Coincident", 0, 3, -1, 1))
sketch9.addConstraint(Sketcher.Constraint("Coincident", 2, 3, -1, 1))
sketch9.addConstraint(Sketcher.Constraint("Coincident", 4, 3, -1, 1))
sketch9.addConstraint(Sketcher.Constraint("Coincident", 7, 3, -1, 1))
sketch9.addConstraint(Sketcher.Constraint("Equal", 0, 4))
sketch9.addConstraint(Sketcher.Constraint("Equal", 4, 5))
sketch9.addConstraint(Sketcher.Constraint("Equal", 2, 7))
sketch9.addConstraint(Sketcher.Constraint("Equal", 7, 8))
sketch9.addConstraint(Sketcher.Constraint("PointOnObject", 4, 1, -1))
sketch9.addConstraint(Sketcher.Constraint("PointOnObject", 7, 2, -1))
sketch9.addConstraint(Sketcher.Constraint("Horizontal", 3, 2, 5, 1))
sketch9.addConstraint(Sketcher.Constraint("Horizontal", 1, 2, 8, 2))
sketch9.addConstraint(Sketcher.Constraint("Vertical", 1, 2, 2, 2))
sketch9.addConstraint(Sketcher.Constraint("Radius", 0, Q("9 mm")))
sketch9.addConstraint(Sketcher.Constraint("Radius", 2, Q("10.5 mm")))
sketch9.addConstraint(Sketcher.Constraint("DistanceY", 1, 1, 1, 2, Q("1.775946 mm")))
sketch9.setExpression("Constraints[27]", "Params.sketch9_radius")
sketch9.setExpression("Constraints[28]", "Params.sketch9_radius2")
pad5 = doc.addObject("PartDesign::Pad", "Pad004")
body.addObject(pad5)
pad5.Profile = sketch9
pad5.setExpression("Length", "Params.pad5_length")

doc.recompute()
